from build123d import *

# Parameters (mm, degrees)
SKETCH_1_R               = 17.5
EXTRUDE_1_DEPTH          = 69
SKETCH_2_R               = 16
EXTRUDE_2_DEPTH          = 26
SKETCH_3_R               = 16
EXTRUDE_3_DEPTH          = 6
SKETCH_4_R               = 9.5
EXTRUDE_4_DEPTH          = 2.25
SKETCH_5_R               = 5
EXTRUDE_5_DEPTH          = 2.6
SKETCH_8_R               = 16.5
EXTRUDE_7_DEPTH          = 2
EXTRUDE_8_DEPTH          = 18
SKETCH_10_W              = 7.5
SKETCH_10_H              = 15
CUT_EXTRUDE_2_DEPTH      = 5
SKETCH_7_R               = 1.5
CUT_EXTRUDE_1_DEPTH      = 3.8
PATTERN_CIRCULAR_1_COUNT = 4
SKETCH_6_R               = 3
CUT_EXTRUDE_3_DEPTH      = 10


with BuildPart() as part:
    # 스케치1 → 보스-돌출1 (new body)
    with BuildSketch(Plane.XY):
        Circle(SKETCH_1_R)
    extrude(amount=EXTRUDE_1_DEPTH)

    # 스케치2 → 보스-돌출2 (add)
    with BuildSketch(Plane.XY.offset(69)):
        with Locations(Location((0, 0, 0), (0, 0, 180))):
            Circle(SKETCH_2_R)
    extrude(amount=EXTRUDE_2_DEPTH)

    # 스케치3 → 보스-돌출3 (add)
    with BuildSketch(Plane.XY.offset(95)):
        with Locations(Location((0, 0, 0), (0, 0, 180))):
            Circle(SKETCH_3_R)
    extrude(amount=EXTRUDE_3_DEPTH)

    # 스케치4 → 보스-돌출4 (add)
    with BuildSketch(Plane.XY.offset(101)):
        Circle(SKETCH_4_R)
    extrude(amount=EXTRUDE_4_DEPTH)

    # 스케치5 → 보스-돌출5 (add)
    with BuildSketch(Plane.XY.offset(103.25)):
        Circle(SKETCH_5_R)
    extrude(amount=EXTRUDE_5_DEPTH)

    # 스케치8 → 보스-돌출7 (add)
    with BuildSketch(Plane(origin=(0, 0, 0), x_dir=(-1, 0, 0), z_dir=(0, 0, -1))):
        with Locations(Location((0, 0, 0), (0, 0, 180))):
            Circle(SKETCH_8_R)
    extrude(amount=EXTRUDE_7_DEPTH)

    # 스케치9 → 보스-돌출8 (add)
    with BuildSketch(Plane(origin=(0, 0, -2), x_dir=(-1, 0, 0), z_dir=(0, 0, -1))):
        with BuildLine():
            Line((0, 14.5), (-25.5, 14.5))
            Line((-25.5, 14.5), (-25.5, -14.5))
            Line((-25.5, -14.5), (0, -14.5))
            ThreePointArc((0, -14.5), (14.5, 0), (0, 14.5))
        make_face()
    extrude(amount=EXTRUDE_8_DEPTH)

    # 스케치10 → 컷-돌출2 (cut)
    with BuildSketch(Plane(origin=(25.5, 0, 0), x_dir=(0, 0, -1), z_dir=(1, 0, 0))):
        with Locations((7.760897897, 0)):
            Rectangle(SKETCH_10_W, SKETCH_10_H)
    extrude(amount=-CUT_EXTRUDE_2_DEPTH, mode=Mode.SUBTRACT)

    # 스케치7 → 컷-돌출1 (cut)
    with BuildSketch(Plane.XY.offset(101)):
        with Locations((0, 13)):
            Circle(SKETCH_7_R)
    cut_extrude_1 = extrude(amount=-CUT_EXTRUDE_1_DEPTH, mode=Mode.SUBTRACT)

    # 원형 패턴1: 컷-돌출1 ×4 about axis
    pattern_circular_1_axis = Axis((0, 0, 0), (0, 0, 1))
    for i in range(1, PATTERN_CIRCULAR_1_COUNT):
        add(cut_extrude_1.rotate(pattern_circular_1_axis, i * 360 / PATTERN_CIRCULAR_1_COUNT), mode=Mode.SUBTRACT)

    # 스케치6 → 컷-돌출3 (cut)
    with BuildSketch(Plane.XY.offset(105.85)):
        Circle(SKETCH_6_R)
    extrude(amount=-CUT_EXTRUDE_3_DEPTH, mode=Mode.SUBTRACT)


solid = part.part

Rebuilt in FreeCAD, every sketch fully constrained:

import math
import FreeCAD as App
import Part
import Sketcher

V = App.Vector


def add_polygon(sketch, points):
    """Adds a closed chain of lines whose ends are joined by coincident constraints."""
    first, n = sketch.GeometryCount, len(points)
    for a, b in zip(points, points[1:] + points[:1]):
        sketch.addGeometry(Part.LineSegment(App.Vector(*a, 0), App.Vector(*b, 0)), False)
    for i in range(n):
        sketch.addConstraint(Sketcher.Constraint("Coincident", first + i, 2, first + (i + 1) % n, 1))

doc = App.newDocument("Part")
body = doc.addObject("PartDesign::Body", "Body")

# Sketch on XY plane
sketch1 = body.newObject("Sketcher::SketchObject", "Sketch")
sketch1.AttachmentSupport = (doc.getObject("XY_Plane"), [""])
sketch1.MapMode = "FlatFace"
sketch1.addGeometry(Part.Circle(V(0, 0, 0), V(0, 0, 1), 18), False)
sketch1.addConstraint(Sketcher.Constraint("Coincident", 0, 3, -1, 1))
sketch1.addConstraint(Sketcher.Constraint("Diameter", 0, 35.0))
pad1 = body.newObject("PartDesign::Pad", "Pad")
pad1.Profile = sketch1
pad1.Length = 69

# Sketch on XY plane
sketch2 = body.newObject("Sketcher::SketchObject", "Sketch001")
sketch2.AttachmentSupport = (doc.getObject("XY_Plane"), [""])
sketch2.MapMode = "FlatFace"
sketch2.AttachmentOffset = App.Placement(V(0, 0, 69), App.Rotation())
sketch2.addGeometry(Part.Circle(V(0, 0, 0), V(0, 0, 1), 16), False)
sketch2.addConstraint(Sketcher.Constraint("Coincident", 0, 3, -1, 1))
sketch2.addConstraint(Sketcher.Constraint("Diameter", 0, 32.0))
pad2 = body.newObject("PartDesign::Pad", "Pad001")
pad2.Profile = sketch2
pad2.Length = 26

# Sketch on XY plane
sketch3 = body.newObject("Sketcher::SketchObject", "Sketch002")
sketch3.AttachmentSupport = (doc.getObject("XY_Plane"), [""])
sketch3.MapMode = "FlatFace"
sketch3.AttachmentOffset = App.Placement(V(0, 0, 95), App.Rotation())
sketch3.addGeometry(Part.Circle(V(0, 0, 0), V(0, 0, 1), 16), False)
sketch3.addConstraint(Sketcher.Constraint("Coincident", 0, 3, -1, 1))
sketch3.addConstraint(Sketcher.Constraint("Diameter", 0, 32.0))
pad3 = body.newObject("PartDesign::Pad", "Pad002")
pad3.Profile = sketch3
pad3.Length = 6

# Sketch on XY plane
sketch4 = body.newObject("Sketcher::SketchObject", "Sketch003")
sketch4.AttachmentSupport = (doc.getObject("XY_Plane"), [""])
sketch4.MapMode = "FlatFace"
sketch4.AttachmentOffset = App.Placement(V(0, 0, 101), App.Rotation())
sketch4.addGeometry(Part.Circle(V(0, 0, 0), V(0, 0, 1), 10), False)
sketch4.addConstraint(Sketcher.Constraint("Coincident", 0, 3, -1, 1))
sketch4.addConstraint(Sketcher.Constraint("Diameter", 0, 19.0))
pad4 = body.newObject("PartDesign::Pad", "Pad003")
pad4.Profile = sketch4
pad4.Length = 2.25

# Sketch on XY plane
sketch5 = body.newObject("Sketcher::SketchObject", "Sketch004")
sketch5.AttachmentSupport = (doc.getObject("XY_Plane"), [""])
sketch5.MapMode = "FlatFace"
sketch5.AttachmentOffset = App.Placement(V(0, 0, 103.25), App.Rotation())
sketch5.addGeometry(Part.Circle(V(0, 0, 0), V(0, 0, 1), 5), False)
sketch5.addConstraint(Sketcher.Constraint("Coincident", 0, 3, -1, 1))
sketch5.addConstraint(Sketcher.Constraint("Diameter", 0, 10.0))
pad5 = body.newObject("PartDesign::Pad", "Pad004")
pad5.Profile = sketch5
pad5.Length = 2.6

# Sketch on XY plane
sketch6 = body.newObject("Sketcher::SketchObject", "Sketch005")
sketch6.AttachmentSupport = (doc.getObject("XY_Plane"), [""])
sketch6.MapMode = "FlatFace"
sketch6.addGeometry(Part.Circle(V(0, 0, 0), V(0, 0, 1), 16), False)
sketch6.addConstraint(Sketcher.Constraint("Coincident", 0, 3, -1, 1))
sketch6.addConstraint(Sketcher.Constraint("Diameter", 0, 33.0))
pad6 = body.newObject("PartDesign::Pad", "Pad005")
pad6.Profile = sketch6
pad6.Length = 2
pad6.Reversed = True

# Sketch on XY plane
sketch7 = body.newObject("Sketcher::SketchObject", "Sketch006")
sketch7.AttachmentSupport = (doc.getObject("XY_Plane"), [""])
sketch7.MapMode = "FlatFace"
sketch7.AttachmentOffset = App.Placement(V(0, 0, -2), App.Rotation())
sketch7.addGeometry(Part.LineSegment(V(0, 14, 0), V(26, 14, 0)), False)
sketch7.addGeometry(Part.LineSegment(V(26, 14, 0), V(26, -14, 0)), False)
sketch7.addGeometry(Part.LineSegment(V(26, -14, 0), V(0, -14, 0)), False)
sketch7.addGeometry(Part.ArcOfCircle(Part.Circle(V(0, 0, 0), V(0, 0, 1), 14), math.radians(90), math.radians(270)), False)
sketch7.addConstraint(Sketcher.Constraint("Coincident", 0, 2, 1, 1))
sketch7.addConstraint(Sketcher.Constraint("Coincident", 1, 2, 2, 1))
sketch7.addConstraint(Sketcher.Constraint("Tangent", 2, 2, 3, 2))
sketch7.addConstraint(Sketcher.Constraint("Tangent", 3, 1, 0, 1))
sketch7.addConstraint(Sketcher.Constraint("Horizontal", 0))
sketch7.addConstraint(Sketcher.Constraint("Vertical", 1))
sketch7.addConstraint(Sketcher.Constraint("Horizontal", 2))
sketch7.addConstraint(Sketcher.Constraint("Coincident", 3, 3, -1, 1))
sketch7.addConstraint(Sketcher.Constraint("Radius", 3, 14.5))
sketch7.addConstraint(Sketcher.Constraint("DistanceX", 0, 1, 0, 2, 25.5))
pad7 = body.newObject("PartDesign::Pad", "Pad006")
pad7.Profile = sketch7
pad7.Length = 18
pad7.Reversed = True

# Sketch on YZ plane
sketch8 = body.newObject("Sketcher::SketchObject", "Sketch007")
sketch8.AttachmentSupport = (doc.getObject("YZ_Plane"), [""])
sketch8.MapMode = "FlatFace"
sketch8.AttachmentOffset = App.Placement(V(0, 0, 25.5), App.Rotation())
add_polygon(sketch8, [(8, -4), (-8, -4), (-8, -12), (8, -12)])  # lines 0-3
sketch8.addConstraint(Sketcher.Constraint("Horizontal", 0))
sketch8.addConstraint(Sketcher.Constraint("Vertical", 1))
sketch8.addConstraint(Sketcher.Constraint("Horizontal", 2))
sketch8.addConstraint(Sketcher.Constraint("Vertical", 3))
sketch8.addConstraint(Sketcher.Constraint("DistanceX", 0, 2, 0, 1, 15.0))
sketch8.addConstraint(Sketcher.Constraint("DistanceY", 1, 2, 1, 1, 7.5))
sketch8.addConstraint(Sketcher.Constraint("DistanceX", 0, 2, -1, 1, 7.5))
sketch8.addConstraint(Sketcher.Constraint("DistanceY", 0, 2, -1, 1, 4.010898))
pocket1 = body.newObject("PartDesign::Pocket", "Pocket")
pocket1.Profile = sketch8
pocket1.Length = 5

# Sketch on XY plane
sketch9 = body.newObject("Sketcher::SketchObject", "Sketch008")
sketch9.AttachmentSupport = (doc.getObject("XY_Plane"), [""])
sketch9.MapMode = "FlatFace"
sketch9.AttachmentOffset = App.Placement(V(0, 0, 101), App.Rotation())
sketch9.addGeometry(Part.Circle(V(0, 13, 0), V(0, 0, 1), 1.5), False)
sketch9.addConstraint(Sketcher.Constraint("PointOnObject", 0, 3, -2))
sketch9.addConstraint(Sketcher.Constraint("Diameter", 0, 3.0))
sketch9.addConstraint(Sketcher.Constraint("DistanceY", -1, 1, 0, 3, 13.0))
pocket2 = body.newObject("PartDesign::Pocket", "Pocket001")
pocket2.Profile = sketch9
pocket2.Length = 3.8
doc.recompute()

polarpattern = body.newObject("PartDesign::PolarPattern", "PolarPattern")
polarpattern.Originals = [pocket2]
polarpattern.Axis = (doc.getObject("Z_Axis"), [""])
polarpattern.Angle = 360
polarpattern.Occurrences = 4
body.Tip = polarpattern

# Sketch on XY plane
sketch10 = body.newObject("Sketcher::SketchObject", "Sketch009")
sketch10.AttachmentSupport = (doc.getObject("XY_Plane"), [""])
sketch10.MapMode = "FlatFace"
sketch10.AttachmentOffset = App.Placement(V(0, 0, 105.85), App.Rotation())
sketch10.addGeometry(Part.Circle(V(0, 0, 0), V(0, 0, 1), 3), False)
sketch10.addConstraint(Sketcher.Constraint("Coincident", 0, 3, -1, 1))
sketch10.addConstraint(Sketcher.Constraint("Diameter", 0, 6.0))
pocket3 = body.newObject("PartDesign::Pocket", "Pocket002")
pocket3.Profile = sketch10
pocket3.Length = 10

doc.recompute()
